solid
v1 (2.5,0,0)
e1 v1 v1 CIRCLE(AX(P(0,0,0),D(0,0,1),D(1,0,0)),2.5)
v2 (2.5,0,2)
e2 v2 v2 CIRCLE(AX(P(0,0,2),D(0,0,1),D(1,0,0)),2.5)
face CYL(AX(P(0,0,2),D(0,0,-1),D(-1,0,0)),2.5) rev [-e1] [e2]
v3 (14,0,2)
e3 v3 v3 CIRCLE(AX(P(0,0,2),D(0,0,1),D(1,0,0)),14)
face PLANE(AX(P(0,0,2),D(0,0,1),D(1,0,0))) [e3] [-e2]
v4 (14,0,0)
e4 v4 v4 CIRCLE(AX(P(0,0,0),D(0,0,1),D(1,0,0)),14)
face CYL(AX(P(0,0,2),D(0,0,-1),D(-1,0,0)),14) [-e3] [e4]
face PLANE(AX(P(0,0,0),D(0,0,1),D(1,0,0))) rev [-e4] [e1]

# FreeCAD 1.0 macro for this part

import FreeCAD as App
import Part
import Sketcher
from FreeCAD import Vector

doc = App.newDocument("Part")
body = doc.addObject("PartDesign::Body", "Body")

sketch1 = body.newObject("Sketcher::SketchObject", "Sketch")
sketch1.AttachmentSupport = (doc.getObject("XY_Plane"), [""])
sketch1.MapMode = "FlatFace"
sketch1.addGeometry([
    Part.Circle(Vector(0, 0, 0), Vector(0, 0, 1), 14),
    Part.Circle(Vector(0, 0, 0), Vector(0, 0, 1), 2.5),
], False)
sketch1.addConstraint([
    Sketcher.Constraint("Coincident", 0, 3, -1, 1),
    Sketcher.Constraint("Coincident", 1, 3, -1, 1),
    Sketcher.Constraint("Diameter", 0, 28.0),
    Sketcher.Constraint("Diameter", 1, 5.0),
])
pad1 = body.newObject("PartDesign::Pad", "Pad")
pad1.Profile = sketch1
pad1.Length = 2

doc.recompute()
